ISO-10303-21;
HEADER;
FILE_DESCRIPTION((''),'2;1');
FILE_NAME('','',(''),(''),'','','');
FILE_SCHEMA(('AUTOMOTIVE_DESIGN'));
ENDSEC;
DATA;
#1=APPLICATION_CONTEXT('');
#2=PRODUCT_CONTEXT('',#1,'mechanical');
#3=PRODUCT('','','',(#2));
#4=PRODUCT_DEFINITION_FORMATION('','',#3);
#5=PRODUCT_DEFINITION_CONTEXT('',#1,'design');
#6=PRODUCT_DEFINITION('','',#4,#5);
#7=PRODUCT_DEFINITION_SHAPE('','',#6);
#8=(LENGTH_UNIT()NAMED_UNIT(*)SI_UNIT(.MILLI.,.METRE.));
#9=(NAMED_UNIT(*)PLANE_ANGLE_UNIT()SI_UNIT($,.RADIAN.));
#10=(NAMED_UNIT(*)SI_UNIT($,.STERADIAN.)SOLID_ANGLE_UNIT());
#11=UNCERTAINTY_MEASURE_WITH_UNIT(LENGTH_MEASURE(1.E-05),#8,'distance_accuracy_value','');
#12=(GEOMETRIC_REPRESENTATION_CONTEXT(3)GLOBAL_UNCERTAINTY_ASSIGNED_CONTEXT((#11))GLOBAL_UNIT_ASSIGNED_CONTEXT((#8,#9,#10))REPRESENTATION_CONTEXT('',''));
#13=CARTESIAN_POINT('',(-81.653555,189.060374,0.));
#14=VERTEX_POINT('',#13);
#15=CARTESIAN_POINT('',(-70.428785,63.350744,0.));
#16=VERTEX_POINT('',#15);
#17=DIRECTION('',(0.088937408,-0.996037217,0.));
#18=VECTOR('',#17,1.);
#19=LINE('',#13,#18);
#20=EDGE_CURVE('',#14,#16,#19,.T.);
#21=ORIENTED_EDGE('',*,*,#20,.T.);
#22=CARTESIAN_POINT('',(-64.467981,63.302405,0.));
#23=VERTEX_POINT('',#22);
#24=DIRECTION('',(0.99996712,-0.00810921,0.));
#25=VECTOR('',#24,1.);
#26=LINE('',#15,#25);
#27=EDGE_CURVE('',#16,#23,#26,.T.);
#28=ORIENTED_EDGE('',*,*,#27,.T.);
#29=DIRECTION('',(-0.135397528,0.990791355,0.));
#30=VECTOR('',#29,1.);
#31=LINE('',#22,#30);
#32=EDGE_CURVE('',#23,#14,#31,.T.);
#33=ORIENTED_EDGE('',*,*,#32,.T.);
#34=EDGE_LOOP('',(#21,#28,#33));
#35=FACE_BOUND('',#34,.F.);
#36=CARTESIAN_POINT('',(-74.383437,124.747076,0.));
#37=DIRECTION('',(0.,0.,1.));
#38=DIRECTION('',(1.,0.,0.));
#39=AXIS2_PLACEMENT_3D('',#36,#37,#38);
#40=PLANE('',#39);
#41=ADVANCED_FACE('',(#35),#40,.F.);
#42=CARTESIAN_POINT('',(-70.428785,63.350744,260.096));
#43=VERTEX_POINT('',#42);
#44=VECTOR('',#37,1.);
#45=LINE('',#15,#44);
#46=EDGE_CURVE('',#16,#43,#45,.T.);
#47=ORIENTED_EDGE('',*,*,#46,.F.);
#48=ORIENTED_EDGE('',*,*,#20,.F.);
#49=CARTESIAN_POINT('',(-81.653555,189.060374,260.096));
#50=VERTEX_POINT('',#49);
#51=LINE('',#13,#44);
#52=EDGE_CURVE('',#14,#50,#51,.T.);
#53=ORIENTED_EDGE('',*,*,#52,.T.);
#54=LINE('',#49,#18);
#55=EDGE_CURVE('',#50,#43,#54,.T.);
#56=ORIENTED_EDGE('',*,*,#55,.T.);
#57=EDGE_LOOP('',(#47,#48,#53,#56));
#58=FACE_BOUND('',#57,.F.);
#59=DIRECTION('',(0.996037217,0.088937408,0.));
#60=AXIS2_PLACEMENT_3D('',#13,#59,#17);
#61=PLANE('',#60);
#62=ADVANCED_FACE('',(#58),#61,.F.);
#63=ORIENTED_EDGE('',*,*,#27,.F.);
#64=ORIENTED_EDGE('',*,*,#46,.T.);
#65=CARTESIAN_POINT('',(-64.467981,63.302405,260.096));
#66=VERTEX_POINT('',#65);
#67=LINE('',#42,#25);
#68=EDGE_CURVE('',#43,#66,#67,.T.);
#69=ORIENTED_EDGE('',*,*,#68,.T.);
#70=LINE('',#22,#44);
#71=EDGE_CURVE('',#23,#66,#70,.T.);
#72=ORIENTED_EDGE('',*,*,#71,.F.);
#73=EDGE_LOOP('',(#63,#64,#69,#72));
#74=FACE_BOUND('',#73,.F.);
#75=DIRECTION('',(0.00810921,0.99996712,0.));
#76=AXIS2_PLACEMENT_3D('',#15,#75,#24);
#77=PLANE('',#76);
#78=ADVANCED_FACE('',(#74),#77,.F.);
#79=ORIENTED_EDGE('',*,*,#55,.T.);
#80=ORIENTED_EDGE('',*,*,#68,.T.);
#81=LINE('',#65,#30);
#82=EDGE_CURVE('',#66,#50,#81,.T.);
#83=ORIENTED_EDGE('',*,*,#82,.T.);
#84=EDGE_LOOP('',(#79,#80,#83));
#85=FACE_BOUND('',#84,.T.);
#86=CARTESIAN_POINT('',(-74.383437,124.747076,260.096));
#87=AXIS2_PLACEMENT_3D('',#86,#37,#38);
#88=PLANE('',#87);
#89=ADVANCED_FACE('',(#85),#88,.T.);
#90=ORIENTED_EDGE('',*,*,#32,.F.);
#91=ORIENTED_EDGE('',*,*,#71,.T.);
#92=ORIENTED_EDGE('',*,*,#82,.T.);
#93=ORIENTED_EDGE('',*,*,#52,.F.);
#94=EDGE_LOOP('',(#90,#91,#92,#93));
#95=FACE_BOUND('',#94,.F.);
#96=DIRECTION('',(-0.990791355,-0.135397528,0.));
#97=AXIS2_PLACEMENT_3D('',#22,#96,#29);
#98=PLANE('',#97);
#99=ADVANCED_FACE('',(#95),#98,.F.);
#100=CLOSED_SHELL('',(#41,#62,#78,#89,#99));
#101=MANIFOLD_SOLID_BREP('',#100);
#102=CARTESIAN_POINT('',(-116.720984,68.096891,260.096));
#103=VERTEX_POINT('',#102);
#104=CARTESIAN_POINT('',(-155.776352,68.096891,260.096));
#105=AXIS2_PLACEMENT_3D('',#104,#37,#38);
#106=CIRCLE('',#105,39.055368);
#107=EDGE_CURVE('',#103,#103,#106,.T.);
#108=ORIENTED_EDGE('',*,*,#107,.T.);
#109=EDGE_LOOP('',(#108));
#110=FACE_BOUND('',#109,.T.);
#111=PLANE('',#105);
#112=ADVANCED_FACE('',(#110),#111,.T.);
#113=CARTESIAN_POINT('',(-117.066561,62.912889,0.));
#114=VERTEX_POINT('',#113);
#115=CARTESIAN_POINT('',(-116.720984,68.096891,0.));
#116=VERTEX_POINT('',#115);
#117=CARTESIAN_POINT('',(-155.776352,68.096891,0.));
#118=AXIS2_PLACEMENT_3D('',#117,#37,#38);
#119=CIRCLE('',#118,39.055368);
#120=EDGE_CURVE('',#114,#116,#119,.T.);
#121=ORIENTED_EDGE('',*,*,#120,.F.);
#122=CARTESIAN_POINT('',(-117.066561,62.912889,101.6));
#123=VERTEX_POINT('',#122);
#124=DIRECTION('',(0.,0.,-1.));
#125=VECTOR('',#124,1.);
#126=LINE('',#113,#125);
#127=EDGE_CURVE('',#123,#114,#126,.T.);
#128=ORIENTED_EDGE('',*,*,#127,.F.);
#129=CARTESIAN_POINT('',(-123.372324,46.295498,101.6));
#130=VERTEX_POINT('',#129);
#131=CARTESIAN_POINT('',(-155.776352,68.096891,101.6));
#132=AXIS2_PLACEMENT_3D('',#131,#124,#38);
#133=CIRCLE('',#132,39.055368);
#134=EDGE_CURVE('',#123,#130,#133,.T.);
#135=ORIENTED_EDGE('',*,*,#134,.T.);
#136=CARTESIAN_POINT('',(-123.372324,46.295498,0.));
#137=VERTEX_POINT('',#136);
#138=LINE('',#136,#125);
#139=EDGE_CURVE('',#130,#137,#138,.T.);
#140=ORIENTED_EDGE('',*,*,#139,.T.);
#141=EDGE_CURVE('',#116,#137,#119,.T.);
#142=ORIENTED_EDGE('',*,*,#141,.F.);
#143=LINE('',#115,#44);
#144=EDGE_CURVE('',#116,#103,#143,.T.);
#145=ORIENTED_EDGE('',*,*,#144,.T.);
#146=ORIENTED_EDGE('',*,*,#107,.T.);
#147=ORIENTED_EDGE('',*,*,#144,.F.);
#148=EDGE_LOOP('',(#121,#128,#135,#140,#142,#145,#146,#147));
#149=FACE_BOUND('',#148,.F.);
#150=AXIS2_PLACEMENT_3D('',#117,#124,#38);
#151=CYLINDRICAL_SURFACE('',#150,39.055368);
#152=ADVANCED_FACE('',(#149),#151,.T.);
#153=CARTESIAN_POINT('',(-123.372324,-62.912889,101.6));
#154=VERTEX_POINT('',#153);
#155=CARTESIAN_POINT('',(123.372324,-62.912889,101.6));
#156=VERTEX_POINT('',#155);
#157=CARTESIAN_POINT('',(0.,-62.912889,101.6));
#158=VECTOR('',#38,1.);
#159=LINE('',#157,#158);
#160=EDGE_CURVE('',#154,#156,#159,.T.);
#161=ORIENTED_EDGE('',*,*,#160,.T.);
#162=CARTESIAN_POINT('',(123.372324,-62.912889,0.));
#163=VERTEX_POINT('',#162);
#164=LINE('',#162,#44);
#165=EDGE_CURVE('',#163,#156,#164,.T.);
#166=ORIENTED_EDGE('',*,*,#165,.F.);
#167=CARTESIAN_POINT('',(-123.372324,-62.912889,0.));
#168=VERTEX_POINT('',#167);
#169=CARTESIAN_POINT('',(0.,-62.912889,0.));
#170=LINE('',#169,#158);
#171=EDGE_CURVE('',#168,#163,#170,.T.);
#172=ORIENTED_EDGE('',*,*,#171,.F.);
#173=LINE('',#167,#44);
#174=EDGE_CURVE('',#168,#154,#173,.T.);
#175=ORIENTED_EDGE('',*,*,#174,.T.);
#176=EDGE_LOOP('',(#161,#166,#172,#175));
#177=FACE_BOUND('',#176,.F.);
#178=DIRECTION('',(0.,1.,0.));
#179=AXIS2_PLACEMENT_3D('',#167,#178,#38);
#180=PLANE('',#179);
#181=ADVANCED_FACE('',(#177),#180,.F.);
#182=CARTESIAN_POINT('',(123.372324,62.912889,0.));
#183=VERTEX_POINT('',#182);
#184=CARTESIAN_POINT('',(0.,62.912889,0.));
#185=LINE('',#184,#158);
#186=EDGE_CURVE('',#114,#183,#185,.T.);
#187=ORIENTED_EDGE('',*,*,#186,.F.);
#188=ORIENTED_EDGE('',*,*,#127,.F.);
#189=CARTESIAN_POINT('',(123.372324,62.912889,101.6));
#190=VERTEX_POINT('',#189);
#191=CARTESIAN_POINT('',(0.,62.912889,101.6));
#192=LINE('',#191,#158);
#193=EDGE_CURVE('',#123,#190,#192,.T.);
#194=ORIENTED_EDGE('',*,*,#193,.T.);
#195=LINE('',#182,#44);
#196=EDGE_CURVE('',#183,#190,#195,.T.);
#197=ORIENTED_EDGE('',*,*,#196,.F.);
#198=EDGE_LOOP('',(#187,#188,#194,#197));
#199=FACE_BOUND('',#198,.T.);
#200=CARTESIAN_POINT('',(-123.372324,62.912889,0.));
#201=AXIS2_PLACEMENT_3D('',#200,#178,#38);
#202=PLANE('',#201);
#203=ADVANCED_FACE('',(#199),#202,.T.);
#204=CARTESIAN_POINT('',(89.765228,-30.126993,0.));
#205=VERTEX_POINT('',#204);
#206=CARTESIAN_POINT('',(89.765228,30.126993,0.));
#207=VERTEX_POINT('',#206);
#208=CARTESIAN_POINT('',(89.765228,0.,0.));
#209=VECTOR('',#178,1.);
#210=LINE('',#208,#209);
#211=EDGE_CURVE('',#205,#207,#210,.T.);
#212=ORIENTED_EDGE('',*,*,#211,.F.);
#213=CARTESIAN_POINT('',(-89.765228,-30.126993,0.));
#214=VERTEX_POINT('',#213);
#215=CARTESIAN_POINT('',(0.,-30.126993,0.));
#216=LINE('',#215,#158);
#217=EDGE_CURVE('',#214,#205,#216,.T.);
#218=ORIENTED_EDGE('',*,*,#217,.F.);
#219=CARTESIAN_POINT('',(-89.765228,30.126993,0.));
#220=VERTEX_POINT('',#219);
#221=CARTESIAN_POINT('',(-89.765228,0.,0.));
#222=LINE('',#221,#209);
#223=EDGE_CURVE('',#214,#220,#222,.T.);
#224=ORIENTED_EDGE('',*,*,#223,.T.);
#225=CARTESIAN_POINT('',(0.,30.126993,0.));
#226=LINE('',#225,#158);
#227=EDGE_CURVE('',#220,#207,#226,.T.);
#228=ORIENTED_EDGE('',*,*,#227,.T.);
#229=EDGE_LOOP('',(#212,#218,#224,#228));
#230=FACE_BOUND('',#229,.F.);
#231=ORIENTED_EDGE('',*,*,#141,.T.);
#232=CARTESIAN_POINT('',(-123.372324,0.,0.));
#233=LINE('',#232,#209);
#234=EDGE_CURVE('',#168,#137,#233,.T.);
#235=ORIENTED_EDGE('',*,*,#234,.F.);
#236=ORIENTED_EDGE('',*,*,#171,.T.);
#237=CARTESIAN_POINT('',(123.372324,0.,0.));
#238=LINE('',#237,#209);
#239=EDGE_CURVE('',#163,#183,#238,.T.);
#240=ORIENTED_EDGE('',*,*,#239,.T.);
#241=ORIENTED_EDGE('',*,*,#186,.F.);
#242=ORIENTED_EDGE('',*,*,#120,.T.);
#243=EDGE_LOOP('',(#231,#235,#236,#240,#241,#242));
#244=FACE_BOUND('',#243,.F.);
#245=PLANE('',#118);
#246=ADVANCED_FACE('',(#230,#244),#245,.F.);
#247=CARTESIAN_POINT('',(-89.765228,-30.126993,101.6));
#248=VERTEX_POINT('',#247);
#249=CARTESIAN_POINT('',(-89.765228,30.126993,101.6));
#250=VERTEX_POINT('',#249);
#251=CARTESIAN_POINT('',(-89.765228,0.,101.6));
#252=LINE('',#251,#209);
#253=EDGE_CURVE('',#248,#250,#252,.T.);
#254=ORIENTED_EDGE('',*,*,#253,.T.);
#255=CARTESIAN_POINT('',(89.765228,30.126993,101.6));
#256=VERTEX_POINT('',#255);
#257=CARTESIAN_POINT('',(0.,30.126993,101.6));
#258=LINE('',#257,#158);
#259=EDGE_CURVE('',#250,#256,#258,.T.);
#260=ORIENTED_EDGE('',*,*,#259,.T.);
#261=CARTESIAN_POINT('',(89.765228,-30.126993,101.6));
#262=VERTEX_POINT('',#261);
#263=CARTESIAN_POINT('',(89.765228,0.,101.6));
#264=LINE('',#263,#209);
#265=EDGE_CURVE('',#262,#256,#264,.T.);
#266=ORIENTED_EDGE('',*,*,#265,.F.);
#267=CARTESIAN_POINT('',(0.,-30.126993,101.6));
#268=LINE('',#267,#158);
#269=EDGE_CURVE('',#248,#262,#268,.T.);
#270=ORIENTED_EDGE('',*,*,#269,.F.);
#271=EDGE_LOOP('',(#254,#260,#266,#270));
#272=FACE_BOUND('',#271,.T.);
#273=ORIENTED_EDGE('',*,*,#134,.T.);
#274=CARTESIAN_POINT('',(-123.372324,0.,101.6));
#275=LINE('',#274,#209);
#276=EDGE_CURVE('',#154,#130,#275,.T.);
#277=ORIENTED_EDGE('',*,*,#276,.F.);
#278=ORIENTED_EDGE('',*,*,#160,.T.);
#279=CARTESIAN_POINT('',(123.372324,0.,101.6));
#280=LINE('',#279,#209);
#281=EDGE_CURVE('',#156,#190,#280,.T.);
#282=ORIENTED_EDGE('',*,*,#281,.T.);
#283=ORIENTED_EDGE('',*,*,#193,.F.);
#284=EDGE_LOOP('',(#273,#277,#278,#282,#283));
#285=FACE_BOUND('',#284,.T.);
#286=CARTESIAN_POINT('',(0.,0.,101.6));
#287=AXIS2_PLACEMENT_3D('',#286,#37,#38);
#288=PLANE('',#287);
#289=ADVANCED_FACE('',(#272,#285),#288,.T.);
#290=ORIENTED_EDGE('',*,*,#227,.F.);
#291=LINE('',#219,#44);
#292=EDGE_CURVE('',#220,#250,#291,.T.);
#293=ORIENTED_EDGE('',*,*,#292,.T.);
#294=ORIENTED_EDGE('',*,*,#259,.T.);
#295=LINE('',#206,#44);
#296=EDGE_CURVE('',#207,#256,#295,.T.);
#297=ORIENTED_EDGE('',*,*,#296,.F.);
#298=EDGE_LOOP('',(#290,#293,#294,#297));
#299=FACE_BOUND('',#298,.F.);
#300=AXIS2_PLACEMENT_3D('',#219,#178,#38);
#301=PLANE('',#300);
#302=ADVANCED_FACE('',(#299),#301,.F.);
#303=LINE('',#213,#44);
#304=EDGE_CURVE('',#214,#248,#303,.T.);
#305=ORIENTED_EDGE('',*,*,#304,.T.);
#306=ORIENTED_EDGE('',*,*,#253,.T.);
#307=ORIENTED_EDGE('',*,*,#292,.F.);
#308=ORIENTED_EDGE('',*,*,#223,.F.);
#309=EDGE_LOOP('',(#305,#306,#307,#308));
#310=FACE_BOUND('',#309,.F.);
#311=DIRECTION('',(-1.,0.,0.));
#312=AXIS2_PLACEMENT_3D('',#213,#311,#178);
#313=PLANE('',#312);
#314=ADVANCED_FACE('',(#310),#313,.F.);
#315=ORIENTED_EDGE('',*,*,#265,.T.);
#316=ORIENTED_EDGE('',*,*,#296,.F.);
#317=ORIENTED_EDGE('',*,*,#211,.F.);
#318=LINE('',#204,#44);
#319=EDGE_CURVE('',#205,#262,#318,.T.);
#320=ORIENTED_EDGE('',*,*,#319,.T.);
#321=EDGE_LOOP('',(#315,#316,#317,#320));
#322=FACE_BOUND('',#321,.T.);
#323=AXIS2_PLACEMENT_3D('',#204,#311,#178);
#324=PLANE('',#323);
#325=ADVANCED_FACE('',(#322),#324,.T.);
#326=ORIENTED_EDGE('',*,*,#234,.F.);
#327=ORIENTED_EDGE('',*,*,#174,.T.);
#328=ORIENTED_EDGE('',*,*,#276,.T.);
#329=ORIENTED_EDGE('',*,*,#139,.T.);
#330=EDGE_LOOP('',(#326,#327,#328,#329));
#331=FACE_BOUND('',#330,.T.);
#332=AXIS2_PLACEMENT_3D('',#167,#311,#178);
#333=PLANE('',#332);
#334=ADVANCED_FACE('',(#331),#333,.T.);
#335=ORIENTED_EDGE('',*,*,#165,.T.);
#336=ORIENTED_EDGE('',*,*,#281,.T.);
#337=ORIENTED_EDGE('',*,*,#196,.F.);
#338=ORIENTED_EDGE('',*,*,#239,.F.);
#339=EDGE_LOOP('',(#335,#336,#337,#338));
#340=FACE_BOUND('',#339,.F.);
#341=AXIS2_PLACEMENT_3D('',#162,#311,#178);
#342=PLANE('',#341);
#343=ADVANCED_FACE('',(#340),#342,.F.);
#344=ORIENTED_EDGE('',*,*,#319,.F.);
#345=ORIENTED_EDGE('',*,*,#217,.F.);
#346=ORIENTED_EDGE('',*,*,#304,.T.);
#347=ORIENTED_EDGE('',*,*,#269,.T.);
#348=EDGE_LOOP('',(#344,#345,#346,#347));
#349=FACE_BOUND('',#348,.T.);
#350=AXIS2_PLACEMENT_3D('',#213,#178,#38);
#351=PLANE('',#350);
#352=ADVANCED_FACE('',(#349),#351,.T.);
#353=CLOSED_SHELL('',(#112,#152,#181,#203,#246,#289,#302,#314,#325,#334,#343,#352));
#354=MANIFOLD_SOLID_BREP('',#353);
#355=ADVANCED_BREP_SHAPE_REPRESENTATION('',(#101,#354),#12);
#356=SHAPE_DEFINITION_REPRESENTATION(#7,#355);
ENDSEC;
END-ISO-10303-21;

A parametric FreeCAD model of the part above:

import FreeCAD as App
import Part
import Sketcher
from FreeCAD import Vector
Q = App.Units.Quantity

doc = App.newDocument("Part")
body = doc.addObject("PartDesign::Body", "Body")
body.AllowCompound = True

sketch1 = body.newObject("Sketcher::SketchObject", "Sketch")
sketch1.AttachmentSupport = (doc.getObject("XY_Plane"), [""])
sketch1.MapMode = "FlatFace"
sketch1.addGeometry([
    Part.LineSegment(Vector(-123, 63, 0), Vector(-123, -63, 0)),
    Part.LineSegment(Vector(-123, -63, 0), Vector(123, -63, 0)),
    Part.LineSegment(Vector(123, -63, 0), Vector(123, 63, 0)),
    Part.LineSegment(Vector(123, 63, 0), Vector(-123, 63, 0)),
    Part.LineSegment(Vector(90, -30, 0), Vector(-90, -30, 0)),
    Part.LineSegment(Vector(-90, -30, 0), Vector(-90, 30, 0)),
    Part.LineSegment(Vector(-90, 30, 0), Vector(90, 30, 0)),
    Part.LineSegment(Vector(90, 30, 0), Vector(90, -30, 0)),
], False)
sketch1.addConstraint([
    Sketcher.Constraint("Coincident", 0, 2, 1, 1),
    Sketcher.Constraint("Coincident", 1, 2, 2, 1),
    Sketcher.Constraint("Coincident", 2, 2, 3, 1),
    Sketcher.Constraint("Coincident", 3, 2, 0, 1),
    Sketcher.Constraint("Coincident", 4, 2, 5, 1),
    Sketcher.Constraint("Coincident", 5, 2, 6, 1),
    Sketcher.Constraint("Coincident", 6, 2, 7, 1),
    Sketcher.Constraint("Coincident", 7, 2, 4, 1),
    Sketcher.Constraint("Vertical", 0),
    Sketcher.Constraint("Horizontal", 1),
    Sketcher.Constraint("Vertical", 2),
    Sketcher.Constraint("Horizontal", 3),
    Sketcher.Constraint("Horizontal", 4),
    Sketcher.Constraint("Vertical", 5),
    Sketcher.Constraint("Horizontal", 6),
    Sketcher.Constraint("Vertical", 7),
    Sketcher.Constraint("Symmetric", 0, 2, 2, 2, -1, 1),
    Sketcher.Constraint("Symmetric", 4, 2, 6, 2, -1, 1),
    Sketcher.Constraint("DistanceX", 1, 1, 1, 2, 246.744648),
    Sketcher.Constraint("DistanceY", 0, 2, 0, 1, 125.825778),
    Sketcher.Constraint("DistanceX", 4, 2, 4, 1, 179.530456),
    Sketcher.Constraint("DistanceY", 5, 1, 5, 2, 60.253986),
])
pad1 = body.newObject("PartDesign::Pad", "Pad")
pad1.Profile = sketch1
pad1.Length = Q("4 in")

sketch2 = body.newObject("Sketcher::SketchObject", "Sketch001")
sketch2.AttachmentSupport = (doc.getObject("XY_Plane"), [""])
sketch2.MapMode = "FlatFace"
sketch2.addGeometry([
    Part.Circle(Vector(-156, 68, 0), Vector(0, 0, 1), 39),
    Part.LineSegment(Vector(-82, 189, 0), Vector(-70, 63, 0)),
    Part.LineSegment(Vector(-70, 63, 0), Vector(-64, 63, 0)),
    Part.LineSegment(Vector(-64, 63, 0), Vector(-82, 189, 0)),
], False)
sketch2.addConstraint([
    Sketcher.Constraint("Coincident", 1, 2, 2, 1),
    Sketcher.Constraint("Coincident", 2, 2, 3, 1),
    Sketcher.Constraint("Coincident", 3, 2, 1, 1),
    Sketcher.Constraint("Diameter", 0, 78.110736),
    Sketcher.Constraint("Distance", 2, 5.961),
    Sketcher.Constraint("Distance", 1, 126.209772),
    Sketcher.Constraint("DistanceX", 0, 3, -1, 1, 155.776352),
    Sketcher.Constraint("DistanceY", -1, 1, 0, 3, 68.096891),
    Sketcher.Constraint("DistanceX", 2, 2, -1, 1, 64.467981),
    Sketcher.Constraint("DistanceY", 2, 2, 1, 2, 0.048339),
    Sketcher.Constraint("DistanceX", 3, 2, 1, 2, 11.22477),
    Sketcher.Constraint("DistanceY", -1, 1, 1, 2, 63.350744),
])
pad2 = body.newObject("PartDesign::Pad", "Pad001")
pad2.Profile = sketch2
pad2.Length = Q("10.24 in")

doc.recompute()
